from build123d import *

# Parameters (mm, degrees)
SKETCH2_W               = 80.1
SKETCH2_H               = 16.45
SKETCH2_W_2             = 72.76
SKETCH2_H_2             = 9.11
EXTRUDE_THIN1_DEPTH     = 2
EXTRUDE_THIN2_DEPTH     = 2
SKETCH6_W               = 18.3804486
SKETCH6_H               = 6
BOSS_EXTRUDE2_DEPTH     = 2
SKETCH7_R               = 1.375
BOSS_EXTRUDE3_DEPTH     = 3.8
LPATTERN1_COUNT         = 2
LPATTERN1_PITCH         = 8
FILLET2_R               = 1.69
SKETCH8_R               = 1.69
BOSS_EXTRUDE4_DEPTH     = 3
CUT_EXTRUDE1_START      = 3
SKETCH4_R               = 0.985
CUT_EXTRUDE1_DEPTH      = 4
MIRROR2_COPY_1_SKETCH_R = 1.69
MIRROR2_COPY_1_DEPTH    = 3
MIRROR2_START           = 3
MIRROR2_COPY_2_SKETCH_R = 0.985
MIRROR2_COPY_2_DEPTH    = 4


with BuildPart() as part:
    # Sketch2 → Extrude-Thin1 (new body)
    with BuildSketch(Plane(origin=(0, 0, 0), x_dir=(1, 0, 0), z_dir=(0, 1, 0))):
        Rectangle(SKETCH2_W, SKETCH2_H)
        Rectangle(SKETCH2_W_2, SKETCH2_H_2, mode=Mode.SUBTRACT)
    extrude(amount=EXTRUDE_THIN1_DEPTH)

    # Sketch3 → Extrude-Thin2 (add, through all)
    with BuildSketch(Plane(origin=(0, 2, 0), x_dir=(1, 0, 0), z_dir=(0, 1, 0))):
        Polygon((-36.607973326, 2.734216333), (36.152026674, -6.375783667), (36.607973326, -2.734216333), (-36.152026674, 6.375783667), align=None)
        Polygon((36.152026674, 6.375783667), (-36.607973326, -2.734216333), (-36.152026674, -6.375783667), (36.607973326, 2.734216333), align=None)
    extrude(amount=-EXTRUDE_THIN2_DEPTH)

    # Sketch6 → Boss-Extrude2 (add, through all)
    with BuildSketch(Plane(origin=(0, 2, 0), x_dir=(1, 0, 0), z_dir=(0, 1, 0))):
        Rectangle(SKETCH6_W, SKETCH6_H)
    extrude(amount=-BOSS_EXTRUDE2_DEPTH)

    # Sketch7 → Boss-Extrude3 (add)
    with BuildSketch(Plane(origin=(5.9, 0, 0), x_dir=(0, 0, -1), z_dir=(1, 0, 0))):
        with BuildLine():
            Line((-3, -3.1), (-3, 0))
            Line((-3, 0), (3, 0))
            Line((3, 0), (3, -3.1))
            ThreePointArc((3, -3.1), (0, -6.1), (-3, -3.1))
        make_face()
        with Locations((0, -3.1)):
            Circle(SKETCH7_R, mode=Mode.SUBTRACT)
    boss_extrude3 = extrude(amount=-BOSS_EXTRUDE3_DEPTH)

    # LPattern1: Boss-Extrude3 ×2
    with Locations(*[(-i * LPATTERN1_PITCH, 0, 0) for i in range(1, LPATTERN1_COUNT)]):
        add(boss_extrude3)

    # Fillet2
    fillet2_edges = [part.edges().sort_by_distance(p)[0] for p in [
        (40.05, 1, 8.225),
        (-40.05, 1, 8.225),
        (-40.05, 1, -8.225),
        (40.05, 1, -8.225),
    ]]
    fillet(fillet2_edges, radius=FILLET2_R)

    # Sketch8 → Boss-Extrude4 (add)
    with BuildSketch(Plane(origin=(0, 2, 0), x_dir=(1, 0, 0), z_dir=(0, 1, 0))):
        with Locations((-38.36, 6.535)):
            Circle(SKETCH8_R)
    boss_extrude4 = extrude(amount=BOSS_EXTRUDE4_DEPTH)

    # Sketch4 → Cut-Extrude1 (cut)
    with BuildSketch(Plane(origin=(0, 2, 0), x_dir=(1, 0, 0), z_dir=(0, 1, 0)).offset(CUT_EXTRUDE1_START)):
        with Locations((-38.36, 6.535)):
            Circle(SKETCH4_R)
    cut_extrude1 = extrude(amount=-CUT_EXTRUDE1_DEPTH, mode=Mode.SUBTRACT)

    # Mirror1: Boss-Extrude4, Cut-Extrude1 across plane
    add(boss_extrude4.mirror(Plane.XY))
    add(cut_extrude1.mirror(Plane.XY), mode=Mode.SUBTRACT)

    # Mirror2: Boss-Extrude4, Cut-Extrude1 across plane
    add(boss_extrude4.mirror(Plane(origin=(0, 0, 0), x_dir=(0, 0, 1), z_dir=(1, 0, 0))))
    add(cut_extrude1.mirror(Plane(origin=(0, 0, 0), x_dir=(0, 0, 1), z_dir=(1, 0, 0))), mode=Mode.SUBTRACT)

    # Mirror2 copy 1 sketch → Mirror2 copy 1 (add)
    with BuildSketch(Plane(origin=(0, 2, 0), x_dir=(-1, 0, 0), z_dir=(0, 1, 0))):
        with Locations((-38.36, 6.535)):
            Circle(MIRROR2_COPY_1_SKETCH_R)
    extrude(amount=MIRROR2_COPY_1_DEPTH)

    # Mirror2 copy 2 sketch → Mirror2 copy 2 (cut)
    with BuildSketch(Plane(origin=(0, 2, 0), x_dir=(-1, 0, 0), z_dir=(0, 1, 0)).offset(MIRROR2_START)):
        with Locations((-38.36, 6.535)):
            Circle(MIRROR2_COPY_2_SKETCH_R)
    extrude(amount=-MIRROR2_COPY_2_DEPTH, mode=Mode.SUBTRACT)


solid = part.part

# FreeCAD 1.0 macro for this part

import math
import FreeCAD as App
import Part
import Sketcher
from FreeCAD import Vector


def edges_at(feature, points):
    """Names of the edges that pass closest to the given points."""
    edges = feature.Shape.Edges
    near = lambda p: min(range(len(edges)), key=lambda i: edges[i].distToShape(Part.Vertex(*p))[0])
    return sorted({f"Edge{near(p) + 1}" for p in points})

doc = App.newDocument("Part")
body = doc.addObject("PartDesign::Body", "Body")

# Sketch on XZ plane
sketch1 = body.newObject("Sketcher::SketchObject", "Sketch")
sketch1.AttachmentSupport = (doc.getObject("XZ_Plane"), [""])
sketch1.MapMode = "FlatFace"
sketch1.addGeometry([
    Part.LineSegment(Vector(-40, -8, 0), Vector(-40, 8, 0)),  # 0
    Part.LineSegment(Vector(-40, 8, 0), Vector(40, 8, 0)),  # 1
    Part.LineSegment(Vector(40, 8, 0), Vector(40, -8, 0)),  # 2
    Part.LineSegment(Vector(40, -8, 0), Vector(-40, -8, 0)),  # 3
    Part.LineSegment(Vector(36, 5, 0), Vector(-36, 5, 0)),  # 4
    Part.LineSegment(Vector(-36, 5, 0), Vector(-36, -5, 0)),  # 5
    Part.LineSegment(Vector(-36, -5, 0), Vector(36, -5, 0)),  # 6
    Part.LineSegment(Vector(36, -5, 0), Vector(36, 5, 0)),  # 7
], False)
sketch1.addConstraint([
    Sketcher.Constraint("Coincident", 0, 2, 1, 1),
    Sketcher.Constraint("Coincident", 1, 2, 2, 1),
    Sketcher.Constraint("Coincident", 2, 2, 3, 1),
    Sketcher.Constraint("Coincident", 3, 2, 0, 1),
    Sketcher.Constraint("Coincident", 4, 2, 5, 1),
    Sketcher.Constraint("Coincident", 5, 2, 6, 1),
    Sketcher.Constraint("Coincident", 6, 2, 7, 1),
    Sketcher.Constraint("Coincident", 7, 2, 4, 1),
    Sketcher.Constraint("Vertical", 0),
    Sketcher.Constraint("Horizontal", 1),
    Sketcher.Constraint("Vertical", 2),
    Sketcher.Constraint("Horizontal", 3),
    Sketcher.Constraint("Horizontal", 4),
    Sketcher.Constraint("Vertical", 5),
    Sketcher.Constraint("Horizontal", 6),
    Sketcher.Constraint("Vertical", 7),
    Sketcher.Constraint("Symmetric", 0, 2, 2, 2, -1, 1),
    Sketcher.Constraint("Symmetric", 4, 2, 6, 2, -1, 1),
    Sketcher.Constraint("DistanceX", 1, 1, 1, 2, 80.1),
    Sketcher.Constraint("DistanceX", 4, 2, 4, 1, 72.76),
    Sketcher.Constraint("DistanceY", 0, 1, 0, 2, 16.45),
    Sketcher.Constraint("DistanceY", 5, 2, 5, 1, 9.11),
])
pad1 = body.newObject("PartDesign::Pad", "Pad")
pad1.Profile = sketch1
pad1.Length = 2
pad1.Reversed = True

# Sketch on XZ plane
sketch2 = body.newObject("Sketcher::SketchObject", "Sketch001")
sketch2.AttachmentSupport = (doc.getObject("XZ_Plane"), [""])
sketch2.MapMode = "FlatFace"
sketch2.AttachmentOffset = App.Placement(Vector(0, 0, -2), App.Rotation())
sketch2.addGeometry([
    Part.LineSegment(Vector(-36.2, -6.4, 0), Vector(-36.6, -2.7, 0)),  # 0
    Part.LineSegment(Vector(-36.6, -2.7, 0), Vector(-14.8, 0, 0)),  # 1
    Part.LineSegment(Vector(-14.8, 0, 0), Vector(-36.6, 2.7, 0)),  # 2
    Part.LineSegment(Vector(-36.6, 2.7, 0), Vector(-36.2, 6.4, 0)),  # 3
    Part.LineSegment(Vector(-36.2, 6.4, 0), Vector(0, 1.8, 0)),  # 4
    Part.LineSegment(Vector(0, 1.8, 0), Vector(36.2, 6.4, 0)),  # 5
    Part.LineSegment(Vector(36.2, 6.4, 0), Vector(36.6, 2.7, 0)),  # 6
    Part.LineSegment(Vector(36.6, 2.7, 0), Vector(14.8, 0, 0)),  # 7
    Part.LineSegment(Vector(14.8, 0, 0), Vector(36.6, -2.7, 0)),  # 8
    Part.LineSegment(Vector(36.6, -2.7, 0), Vector(36.2, -6.4, 0)),  # 9
    Part.LineSegment(Vector(36.2, -6.4, 0), Vector(0, -1.8, 0)),  # 10
    Part.LineSegment(Vector(0, -1.8, 0), Vector(-36.2, -6.4, 0)),  # 11
], False)
sketch2.addConstraint([
    Sketcher.Constraint("Coincident", 0, 2, 1, 1),
    Sketcher.Constraint("Coincident", 1, 2, 2, 1),
    Sketcher.Constraint("Coincident", 2, 2, 3, 1),
    Sketcher.Constraint("Coincident", 3, 2, 4, 1),
    Sketcher.Constraint("Coincident", 4, 2, 5, 1),
    Sketcher.Constraint("Coincident", 5, 2, 6, 1),
    Sketcher.Constraint("Coincident", 6, 2, 7, 1),
    Sketcher.Constraint("Coincident", 7, 2, 8, 1),
    Sketcher.Constraint("Coincident", 8, 2, 9, 1),
    Sketcher.Constraint("Coincident", 9, 2, 10, 1),
    Sketcher.Constraint("Coincident", 10, 2, 11, 1),
    Sketcher.Constraint("Coincident", 11, 2, 0, 1),
    Sketcher.Constraint("Symmetric", 0, 2, 6, 2, -1, 1),
    Sketcher.Constraint("Symmetric", 1, 2, 7, 2, -1, 1),
    Sketcher.Constraint("Symmetric", 2, 2, 8, 2, -1, 1),
    Sketcher.Constraint("Symmetric", 3, 2, 9, 2, -1, 1),
    Sketcher.Constraint("Symmetric", 4, 2, 10, 2, -1, 1),
    Sketcher.Constraint("Symmetric", 5, 2, 11, 2, -1, 1),
    Sketcher.Constraint("Symmetric", 3, 2, 5, 2, -2),
    Sketcher.Constraint("Symmetric", 2, 2, 6, 2, -2),
    Sketcher.Constraint("PointOnObject", 1, 2, -1),
    Sketcher.Constraint("PointOnObject", 4, 2, -2),
    Sketcher.Constraint("Perpendicular", 0, 1),
    Sketcher.Constraint("Perpendicular", 3, 4),
    Sketcher.Constraint("Distance", 0, 3.67),
    Sketcher.Constraint("DistanceY", 0, 2, 3, 2, 9.11),
    Sketcher.Constraint("DistanceX", 2, 2, 5, 2, 72.76),
    Sketcher.Constraint("Distance", 1, 22.008219),
])
pad2 = body.newObject("PartDesign::Pad", "Pad001")
pad2.Profile = sketch2
pad2.Length = 2

# Sketch on XZ plane
sketch3 = body.newObject("Sketcher::SketchObject", "Sketch002")
sketch3.AttachmentSupport = (doc.getObject("XZ_Plane"), [""])
sketch3.MapMode = "FlatFace"
sketch3.AttachmentOffset = App.Placement(Vector(0, 0, -2), App.Rotation())
sketch3.addGeometry([
    Part.LineSegment(Vector(-9, -3, 0), Vector(-9, 3, 0)),
    Part.LineSegment(Vector(-9, 3, 0), Vector(9, 3, 0)),
    Part.LineSegment(Vector(9, 3, 0), Vector(9, -3, 0)),
    Part.LineSegment(Vector(9, -3, 0), Vector(-9, -3, 0)),
], False)
sketch3.addConstraint([
    Sketcher.Constraint("Coincident", 0, 2, 1, 1),
    Sketcher.Constraint("Coincident", 1, 2, 2, 1),
    Sketcher.Constraint("Coincident", 2, 2, 3, 1),
    Sketcher.Constraint("Coincident", 3, 2, 0, 1),
    Sketcher.Constraint("Vertical", 0),
    Sketcher.Constraint("Horizontal", 1),
    Sketcher.Constraint("Vertical", 2),
    Sketcher.Constraint("Horizontal", 3),
    Sketcher.Constraint("Symmetric", 0, 2, 2, 2, -1, 1),
    Sketcher.Constraint("DistanceY", 0, 1, 0, 2, 6.0),
    Sketcher.Constraint("DistanceX", 1, 1, 1, 2, 18.380449),
])
pad3 = body.newObject("PartDesign::Pad", "Pad002")
pad3.Profile = sketch3
pad3.Type = "UpToLast"

# Sketch on YZ plane
sketch4 = body.newObject("Sketcher::SketchObject", "Sketch003")
sketch4.AttachmentSupport = (doc.getObject("YZ_Plane"), [""])
sketch4.MapMode = "FlatFace"
sketch4.AttachmentOffset = App.Placement(Vector(0, 0, 5.9), App.Rotation())
sketch4.addGeometry([
    Part.LineSegment(Vector(0, 3, 0), Vector(-3.1, 3, 0)),  # 0
    Part.ArcOfCircle(Part.Circle(Vector(-3.1, 0, 0), Vector(0, 0, 1), 3), math.radians(90), math.radians(270)),  # 1
    Part.LineSegment(Vector(-3.1, -3, 0), Vector(0, -3, 0)),  # 2
    Part.LineSegment(Vector(0, -3, 0), Vector(0, 3, 0)),  # 3
    Part.Circle(Vector(-3.1, 0, 0), Vector(0, 0, 1), 1.4),  # 4
], False)
sketch4.addConstraint([
    Sketcher.Constraint("Tangent", 0, 2, 1, 1),
    Sketcher.Constraint("Tangent", 1, 2, 2, 1),
    Sketcher.Constraint("Coincident", 2, 2, 3, 1),
    Sketcher.Constraint("Coincident", 3, 2, 0, 1),
    Sketcher.Constraint("Horizontal", 0),
    Sketcher.Constraint("Horizontal", 2),
    Sketcher.Constraint("Vertical", 3),
    Sketcher.Constraint("Coincident", 4, 3, 1, 3),
    Sketcher.Constraint("Symmetric", 2, 2, 3, 2, -1, 1),
    Sketcher.Constraint("Radius", 1, 3.0),
    Sketcher.Constraint("Diameter", 4, 2.75),
    Sketcher.Constraint("DistanceX", 0, 2, 0, 1, 3.1),
])
pad4 = body.newObject("PartDesign::Pad", "Pad003")
pad4.Profile = sketch4
pad4.Length = 3.8
pad4.Reversed = True
doc.recompute()

linearpattern = body.newObject("PartDesign::LinearPattern", "LinearPattern")
linearpattern.Originals = [pad4]
linearpattern.Direction = (doc.getObject("X_Axis"), [""])
linearpattern.Mode = "offset"
linearpattern.Offset = 8
linearpattern.Occurrences = 2
linearpattern.Reversed = True
body.Tip = linearpattern
doc.recompute()

fillet = body.newObject("PartDesign::Fillet", "Fillet")
fillet.Base = (linearpattern, edges_at(linearpattern, [
    (40.05, 1, 8.225),
    (-40.05, 1, 8.225),
    (-40.05, 1, -8.225),
    (40.05, 1, -8.225),
]))
fillet.Radius = 1.69

# Sketch on XZ plane
sketch5 = body.newObject("Sketcher::SketchObject", "Sketch004")
sketch5.AttachmentSupport = (doc.getObject("XZ_Plane"), [""])
sketch5.MapMode = "FlatFace"
sketch5.AttachmentOffset = App.Placement(Vector(0, 0, -2), App.Rotation())
sketch5.addGeometry(Part.Circle(Vector(-38.4, -6.5, 0), Vector(0, 0, 1), 1.7), False)
sketch5.addConstraint([
    Sketcher.Constraint("Diameter", 0, 3.38),
    Sketcher.Constraint("DistanceX", 0, 3, -1, 1, 38.36),
    Sketcher.Constraint("DistanceY", 0, 3, -1, 1, 6.535),
])
pad5 = body.newObject("PartDesign::Pad", "Pad004")
pad5.Profile = sketch5
pad5.Length = 3
pad5.Reversed = True

# Sketch on XZ plane
sketch6 = body.newObject("Sketcher::SketchObject", "Sketch005")
sketch6.AttachmentSupport = (doc.getObject("XZ_Plane"), [""])
sketch6.MapMode = "FlatFace"
sketch6.AttachmentOffset = App.Placement(Vector(0, 0, -5), App.Rotation())
sketch6.addGeometry(Part.Circle(Vector(-38.4, -6.5, 0), Vector(0, 0, 1), 1), False)
sketch6.addConstraint([
    Sketcher.Constraint("Diameter", 0, 1.97),
    Sketcher.Constraint("DistanceX", 0, 3, -1, 1, 38.36),
    Sketcher.Constraint("DistanceY", 0, 3, -1, 1, 6.535),
])
pocket1 = body.newObject("PartDesign::Pocket", "Pocket")
pocket1.Profile = sketch6
pocket1.Length = 4
pocket1.Reversed = True
doc.recompute()

mirrored = body.newObject("PartDesign::Mirrored", "Mirrored")
mirrored.Originals = [pad5, pocket1]
mirrored.MirrorPlane = (doc.getObject("XY_Plane"), [""])
body.Tip = mirrored
doc.recompute()

mirrored2 = body.newObject("PartDesign::Mirrored", "Mirrored001")
mirrored2.Originals = [pad5, pocket1]
mirrored2.MirrorPlane = (doc.getObject("YZ_Plane"), [""])
body.Tip = mirrored2

# Sketch on XZ plane
sketch7 = body.newObject("Sketcher::SketchObject", "Sketch006")
sketch7.AttachmentSupport = (doc.getObject("XZ_Plane"), [""])
sketch7.MapMode = "FlatFace"
sketch7.AttachmentOffset = App.Placement(Vector(0, 0, -2), App.Rotation())
sketch7.addGeometry(Part.Circle(Vector(38.4, 6.5, 0), Vector(0, 0, 1), 1.7), False)
sketch7.addConstraint([
    Sketcher.Constraint("Diameter", 0, 3.38),
    Sketcher.Constraint("DistanceX", -1, 1, 0, 3, 38.36),
    Sketcher.Constraint("DistanceY", -1, 1, 0, 3, 6.535),
])
pad6 = body.newObject("PartDesign::Pad", "Pad005")
pad6.Profile = sketch7
pad6.Length = 3
pad6.Reversed = True

# Sketch on XZ plane
sketch8 = body.newObject("Sketcher::SketchObject", "Sketch007")
sketch8.AttachmentSupport = (doc.getObject("XZ_Plane"), [""])
sketch8.MapMode = "FlatFace"
sketch8.AttachmentOffset = App.Placement(Vector(0, 0, -5), App.Rotation())
sketch8.addGeometry(Part.Circle(Vector(38.4, 6.5, 0), Vector(0, 0, 1), 1), False)
sketch8.addConstraint([
    Sketcher.Constraint("Diameter", 0, 1.97),
    Sketcher.Constraint("DistanceX", -1, 1, 0, 3, 38.36),
    Sketcher.Constraint("DistanceY", -1, 1, 0, 3, 6.535),
])
pocket2 = body.newObject("PartDesign::Pocket", "Pocket001")
pocket2.Profile = sketch8
pocket2.Length = 4
pocket2.Reversed = True

doc.recompute()
